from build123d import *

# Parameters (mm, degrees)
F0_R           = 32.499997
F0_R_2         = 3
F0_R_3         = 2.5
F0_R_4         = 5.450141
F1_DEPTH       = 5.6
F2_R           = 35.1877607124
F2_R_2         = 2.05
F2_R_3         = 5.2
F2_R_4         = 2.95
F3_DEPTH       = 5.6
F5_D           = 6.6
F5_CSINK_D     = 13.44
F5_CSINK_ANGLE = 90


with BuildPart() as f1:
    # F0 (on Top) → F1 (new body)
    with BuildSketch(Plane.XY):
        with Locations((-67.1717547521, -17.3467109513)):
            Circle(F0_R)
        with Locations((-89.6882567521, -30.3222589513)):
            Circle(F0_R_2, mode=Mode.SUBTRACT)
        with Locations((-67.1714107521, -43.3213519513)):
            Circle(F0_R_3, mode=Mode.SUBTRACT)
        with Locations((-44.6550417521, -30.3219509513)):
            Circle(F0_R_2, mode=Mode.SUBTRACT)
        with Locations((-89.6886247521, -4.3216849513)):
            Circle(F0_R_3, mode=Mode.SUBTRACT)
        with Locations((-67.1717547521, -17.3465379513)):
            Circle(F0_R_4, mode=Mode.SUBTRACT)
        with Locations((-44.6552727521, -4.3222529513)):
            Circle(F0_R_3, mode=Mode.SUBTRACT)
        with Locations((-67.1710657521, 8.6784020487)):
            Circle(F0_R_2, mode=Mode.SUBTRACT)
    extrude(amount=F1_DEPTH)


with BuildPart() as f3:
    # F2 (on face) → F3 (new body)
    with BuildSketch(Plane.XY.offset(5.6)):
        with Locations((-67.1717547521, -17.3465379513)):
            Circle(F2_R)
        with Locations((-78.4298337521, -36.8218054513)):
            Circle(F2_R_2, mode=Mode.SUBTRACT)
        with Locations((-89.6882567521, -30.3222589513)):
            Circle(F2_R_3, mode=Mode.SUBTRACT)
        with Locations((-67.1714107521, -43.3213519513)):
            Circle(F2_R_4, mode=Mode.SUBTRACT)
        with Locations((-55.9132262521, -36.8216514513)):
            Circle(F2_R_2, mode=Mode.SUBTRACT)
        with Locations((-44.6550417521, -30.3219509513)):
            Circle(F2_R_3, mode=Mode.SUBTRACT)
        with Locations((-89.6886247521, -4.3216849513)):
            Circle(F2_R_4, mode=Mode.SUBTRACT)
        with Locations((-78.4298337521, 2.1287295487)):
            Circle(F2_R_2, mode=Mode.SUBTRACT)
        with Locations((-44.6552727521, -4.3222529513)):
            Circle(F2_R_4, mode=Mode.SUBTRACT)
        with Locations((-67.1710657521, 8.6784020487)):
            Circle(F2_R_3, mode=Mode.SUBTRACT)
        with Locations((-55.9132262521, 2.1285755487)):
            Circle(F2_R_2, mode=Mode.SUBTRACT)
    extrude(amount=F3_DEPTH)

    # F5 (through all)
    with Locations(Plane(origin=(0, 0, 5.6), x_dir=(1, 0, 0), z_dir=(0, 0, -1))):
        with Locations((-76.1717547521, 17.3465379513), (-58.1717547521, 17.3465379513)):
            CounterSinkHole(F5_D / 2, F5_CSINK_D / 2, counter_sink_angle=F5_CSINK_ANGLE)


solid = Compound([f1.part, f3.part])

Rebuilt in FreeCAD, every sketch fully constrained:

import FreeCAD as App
import Part
import Sketcher

doc = App.newDocument("Part")
params = doc.addObject("Spreadsheet::Sheet", "Params")
for row, (alias, value) in enumerate([
    ("sketch1_diameter", "6 mm"),
    ("sketch1_diameter2", "5 mm"),
    ("pad1_length", "5.6 mm"),
    ("sketch2_diameter", "4.1 mm"),
    ("sketch2_diameter2", "10.4 mm"),
    ("sketch2_diameter3", "5.9 mm"),
    ("pad2_length", "5.6 mm"),
    ("sketch3_diameter", "6.6 mm"),
    ("hole_diameter", "6.6 mm"),
    ("hole_csink_diameter", "13.44 mm"),
], start=1):
    params.set(f"A{row}", alias)
    params.set(f"B{row}", "=" + value)
    params.setAlias(f"B{row}", alias)

body = doc.addObject("PartDesign::Body", "Body")

# Sketch on XY plane
sketch1 = body.newObject("Sketcher::SketchObject", "Sketch")
sketch1.AttachmentSupport = (doc.getObject("XY_Plane"), [""])
sketch1.MapMode = "FlatFace"
sketch1.addGeometry([
    Part.Circle(App.Vector(-67.2, -17.3, 0), App.Vector(0, 0, 1), 32.5),  # 0
    Part.Circle(App.Vector(-89.7, -30.3, 0), App.Vector(0, 0, 1), 3),  # 1
    Part.Circle(App.Vector(-67.2, -17.3, 0), App.Vector(0, 0, 1), 5.5),  # 2
    Part.Circle(App.Vector(-67.2, -43.3, 0), App.Vector(0, 0, 1), 2.5),  # 3
    Part.Circle(App.Vector(-44.7, -30.3, 0), App.Vector(0, 0, 1), 3),  # 4
    Part.Circle(App.Vector(-89.7, -4.3, 0), App.Vector(0, 0, 1), 2.5),  # 5
    Part.Circle(App.Vector(-44.7, -4.3, 0), App.Vector(0, 0, 1), 2.5),  # 6
    Part.Circle(App.Vector(-67.2, 8.7, 0), App.Vector(0, 0, 1), 3),  # 7
], False)
sketch1.addConstraint([
    Sketcher.Constraint("Equal", 1, 4),
    Sketcher.Constraint("Equal", 3, 5),
    Sketcher.Constraint("Equal", 5, 6),
    Sketcher.Constraint("Equal", 4, 7),
    Sketcher.Constraint("Vertical", 0, 3, 2, 3),
    Sketcher.Constraint("Diameter", 1, 6.0),
    Sketcher.Constraint("Diameter", 3, 5.0),
    Sketcher.Constraint("Diameter", 0, 64.999994),
    Sketcher.Constraint("Diameter", 2, 10.900282),
    Sketcher.Constraint("DistanceY", 3, 3, 4, 3, 12.999401),
    Sketcher.Constraint("DistanceY", 4, 3, 6, 3, 25.999698),
    Sketcher.Constraint("DistanceY", 0, 3, -1, 1, 17.346711),
    Sketcher.Constraint("DistanceY", 1, 3, -1, 1, 30.322259),
    Sketcher.Constraint("DistanceX", 3, 3, -1, 1, 67.171411),
    Sketcher.Constraint("DistanceY", 3, 3, -1, 1, 43.321352),
    Sketcher.Constraint("DistanceX", 4, 3, -1, 1, 44.655042),
    Sketcher.Constraint("DistanceY", 1, 3, 2, 3, 12.975721),
    Sketcher.Constraint("DistanceX", 5, 3, 2, 3, 22.51687),
    Sketcher.Constraint("DistanceX", 6, 3, 4, 3, 0.000231),
    Sketcher.Constraint("DistanceX", 2, 3, 6, 3, 22.516482),
    Sketcher.Constraint("DistanceY", 6, 3, 5, 3, 0.000568),
    Sketcher.Constraint("DistanceX", 5, 3, 7, 3, 22.517559),
    Sketcher.Constraint("DistanceY", 2, 3, 7, 3, 26.02494),
    Sketcher.Constraint("DistanceX", 1, 3, -1, 1, 89.688257),
])
sketch1.setExpression("Constraints[5]", "Params.sketch1_diameter")
sketch1.setExpression("Constraints[6]", "Params.sketch1_diameter2")
pad1 = body.newObject("PartDesign::Pad", "Pad")
pad1.Profile = sketch1
pad1.setExpression("Length", "Params.pad1_length")
body2 = doc.addObject("PartDesign::Body", "Body001")

# Sketch on XY plane
sketch2 = body2.newObject("Sketcher::SketchObject", "Sketch001")
sketch2.AttachmentSupport = (doc.getObject("XY_Plane001"), [""])
sketch2.MapMode = "FlatFace"
sketch2.AttachmentOffset = App.Placement(App.Vector(0, 0, 5.6), App.Rotation())
sketch2.addGeometry([
    Part.Circle(App.Vector(-67.2, -17.3, 0), App.Vector(0, 0, 1), 35.2),  # 0
    Part.Circle(App.Vector(-78.4, -36.8, 0), App.Vector(0, 0, 1), 2),  # 1
    Part.Circle(App.Vector(-89.7, -30.3, 0), App.Vector(0, 0, 1), 5.2),  # 2
    Part.Circle(App.Vector(-67.2, -43.3, 0), App.Vector(0, 0, 1), 3),  # 3
    Part.Circle(App.Vector(-55.9, -36.8, 0), App.Vector(0, 0, 1), 2),  # 4
    Part.Circle(App.Vector(-44.7, -30.3, 0), App.Vector(0, 0, 1), 5.2),  # 5
    Part.Circle(App.Vector(-89.7, -4.3, 0), App.Vector(0, 0, 1), 3),  # 6
    Part.Circle(App.Vector(-78.4, 2.1, 0), App.Vector(0, 0, 1), 2),  # 7
    Part.Circle(App.Vector(-44.7, -4.3, 0), App.Vector(0, 0, 1), 3),  # 8
    Part.Circle(App.Vector(-55.9, 2.1, 0), App.Vector(0, 0, 1), 2),  # 9
    Part.Circle(App.Vector(-67.2, 8.7, 0), App.Vector(0, 0, 1), 5.2),  # 10
], False)
sketch2.addConstraint([
    Sketcher.Constraint("Equal", 1, 4),
    Sketcher.Constraint("Equal", 2, 5),
    Sketcher.Constraint("Equal", 3, 6),
    Sketcher.Constraint("Equal", 4, 7),
    Sketcher.Constraint("Equal", 6, 8),
    Sketcher.Constraint("Equal", 7, 9),
    Sketcher.Constraint("Equal", 5, 10),
    Sketcher.Constraint("Vertical", 1, 3, 7, 3),
    Sketcher.Constraint("Vertical", 4, 3, 9, 3),
    Sketcher.Constraint("Diameter", 1, 4.1),
    Sketcher.Constraint("Diameter", 2, 10.4),
    Sketcher.Constraint("Diameter", 3, 5.9),
    Sketcher.Constraint("Diameter", 0, 70.375521),
    Sketcher.Constraint("DistanceY", 3, 3, 4, 3, 6.4997),
    Sketcher.Constraint("DistanceY", 4, 3, 5, 3, 6.4997),
    Sketcher.Constraint("DistanceX", 6, 3, 4, 3, 33.775398),
    Sketcher.Constraint("DistanceY", 5, 3, 8, 3, 25.999698),
    Sketcher.Constraint("DistanceY", 2, 3, -1, 1, 30.322259),
    Sketcher.Constraint("DistanceX", 3, 3, -1, 1, 67.171411),
    Sketcher.Constraint("DistanceY", 3, 3, -1, 1, 43.321352),
    Sketcher.Constraint("DistanceX", 5, 3, -1, 1, 44.655042),
    Sketcher.Constraint("DistanceY", -1, 1, 7, 3, 2.12873),
    Sketcher.Constraint("DistanceX", 1, 3, 0, 3, 11.258079),
    Sketcher.Constraint("DistanceY", 2, 3, 0, 3, 12.975721),
    Sketcher.Constraint("DistanceX", 0, 3, 4, 3, 11.258528),
    Sketcher.Constraint("DistanceX", 2, 3, 4, 3, 33.77503),
    Sketcher.Constraint("DistanceX", 1, 3, 5, 3, 33.774792),
    Sketcher.Constraint("DistanceY", 1, 3, 6, 3, 32.500121),
    Sketcher.Constraint("DistanceX", 8, 3, 5, 3, 0.000231),
    Sketcher.Constraint("DistanceY", 8, 3, 9, 3, 6.450829),
    Sketcher.Constraint("DistanceY", 6, 3, 9, 3, 6.45026),
    Sketcher.Constraint("DistanceX", 10, 3, 9, 3, 11.25784),
    Sketcher.Constraint("DistanceY", 0, 3, 10, 3, 26.02494),
])
sketch2.setExpression("Constraints[9]", "Params.sketch2_diameter")
sketch2.setExpression("Constraints[10]", "Params.sketch2_diameter2")
sketch2.setExpression("Constraints[11]", "Params.sketch2_diameter3")
pad2 = body2.newObject("PartDesign::Pad", "Pad001")
pad2.Profile = sketch2
pad2.setExpression("Length", "Params.pad2_length")

# Sketch on XY plane
sketch3 = body2.newObject("Sketcher::SketchObject", "Sketch002")
sketch3.AttachmentSupport = (doc.getObject("XY_Plane001"), [""])
sketch3.MapMode = "FlatFace"
sketch3.AttachmentOffset = App.Placement(App.Vector(0, 0, 5.6), App.Rotation())
sketch3.addGeometry([
    Part.Circle(App.Vector(-76.2, -17.3, 0), App.Vector(0, 0, 1), 3.3),
    Part.Circle(App.Vector(-58.2, -17.3, 0), App.Vector(0, 0, 1), 3.3),
], False)
sketch3.addConstraint([
    Sketcher.Constraint("Equal", 0, 1),
    Sketcher.Constraint("Horizontal", 0, 3, 1, 3),
    Sketcher.Constraint("Diameter", 0, 6.6),
    Sketcher.Constraint("DistanceX", 0, 3, 1, 3, 18.0),
    Sketcher.Constraint("DistanceX", 0, 3, -1, 1, 76.171755),
    Sketcher.Constraint("DistanceY", 0, 3, -1, 1, 17.346538),
])
sketch3.setExpression("Constraints[2]", "Params.sketch3_diameter")
doc.recompute()
hole = body2.newObject("PartDesign::Hole", "Hole")
hole.Profile = sketch3
hole.ThreadType = "None"
hole.setExpression("Diameter", "Params.hole_diameter")
hole.DepthType = "ThroughAll"
hole.HoleCutType = "Countersink"
hole.setExpression("HoleCutDiameter", "Params.hole_csink_diameter")
hole.HoleCutCountersinkAngle = 90
hole.Reversed = True

doc.recompute()
